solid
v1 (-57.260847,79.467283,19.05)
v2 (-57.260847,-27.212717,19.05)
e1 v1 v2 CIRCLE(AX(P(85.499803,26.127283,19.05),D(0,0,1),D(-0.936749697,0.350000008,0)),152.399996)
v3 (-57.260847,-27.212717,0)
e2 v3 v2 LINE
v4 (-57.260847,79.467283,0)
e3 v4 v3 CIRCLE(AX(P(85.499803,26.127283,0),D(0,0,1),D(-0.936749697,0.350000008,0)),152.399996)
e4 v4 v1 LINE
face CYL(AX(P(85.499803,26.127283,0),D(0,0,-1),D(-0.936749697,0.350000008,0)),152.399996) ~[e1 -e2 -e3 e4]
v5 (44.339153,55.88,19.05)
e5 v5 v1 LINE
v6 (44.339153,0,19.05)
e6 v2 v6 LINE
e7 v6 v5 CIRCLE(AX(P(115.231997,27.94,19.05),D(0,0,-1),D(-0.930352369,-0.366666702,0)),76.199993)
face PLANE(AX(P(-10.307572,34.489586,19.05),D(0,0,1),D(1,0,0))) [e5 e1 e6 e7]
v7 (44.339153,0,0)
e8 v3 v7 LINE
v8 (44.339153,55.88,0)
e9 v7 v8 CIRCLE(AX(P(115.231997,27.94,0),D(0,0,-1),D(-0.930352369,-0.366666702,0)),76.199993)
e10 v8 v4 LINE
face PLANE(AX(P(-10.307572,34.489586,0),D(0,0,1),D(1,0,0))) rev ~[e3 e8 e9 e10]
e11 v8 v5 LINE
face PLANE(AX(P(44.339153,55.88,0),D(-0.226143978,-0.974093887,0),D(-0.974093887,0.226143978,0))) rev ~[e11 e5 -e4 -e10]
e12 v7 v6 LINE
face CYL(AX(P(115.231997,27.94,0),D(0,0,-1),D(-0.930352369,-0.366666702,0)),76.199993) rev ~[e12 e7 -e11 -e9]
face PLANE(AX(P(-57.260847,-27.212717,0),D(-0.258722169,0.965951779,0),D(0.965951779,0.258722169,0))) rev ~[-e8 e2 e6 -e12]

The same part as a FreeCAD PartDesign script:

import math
import FreeCAD as App
import Part
import Sketcher

V = App.Vector
Q = App.Units.Quantity

doc = App.newDocument("Part")
body = doc.addObject("PartDesign::Body", "Body")

# Sketch on XY plane
sketch1 = doc.addObject("Sketcher::SketchObject", "Sketch")
body.addObject(sketch1)
sketch1.AttachmentSupport = (doc.XY_Plane, [""])
sketch1.MapMode = "FlatFace"
sketch1.addGeometry(Part.LineSegment(V(-57, -27, 0), V(44, 0, 0)), False)
sketch1.addGeometry(Part.ArcOfCircle(Part.Circle(V(115, 28, 0), V(0, 0, 1), 76), math.radians(158), math.radians(202)), False)
sketch1.addGeometry(Part.LineSegment(V(44, 56, 0), V(-57, 79, 0)), False)
sketch1.addGeometry(Part.ArcOfCircle(Part.Circle(V(85, 26, 0), V(0, 0, 1), 152), math.radians(160), math.radians(200)), False)
sketch1.addConstraint(Sketcher.Constraint("Coincident", 0, 2, 1, 2))
sketch1.addConstraint(Sketcher.Constraint("Coincident", 1, 1, 2, 1))
sketch1.addConstraint(Sketcher.Constraint("Coincident", 2, 2, 3, 1))
sketch1.addConstraint(Sketcher.Constraint("Coincident", 3, 2, 0, 1))
sketch1.addConstraint(Sketcher.Constraint("PointOnObject", 0, 2, -1))
sketch1.addConstraint(Sketcher.Constraint("Vertical", 0, 2, 1, 1))
sketch1.addConstraint(Sketcher.Constraint("Vertical", 2, 2, 3, 2))
sketch1.addConstraint(Sketcher.Constraint("Radius", 3, Q("5.9999999 in")))
sketch1.addConstraint(Sketcher.Constraint("DistanceX", 2, 2, 1, 1, Q("4 in")))
sketch1.addConstraint(Sketcher.Constraint("DistanceY", -1, 1, 1, 3, Q("1.1 in")))
sketch1.addConstraint(Sketcher.Constraint("DistanceY", 3, 3, 2, 2, Q("2.1 in")))
sketch1.addConstraint(Sketcher.Constraint("Radius", 1, Q("76.199993 mm")))
sketch1.addConstraint(Sketcher.Constraint("Distance", 2, Q("104.302061 mm")))
sketch1.addConstraint(Sketcher.Constraint("DistanceX", -1, 1, 1, 3, Q("115.231997 mm")))
pad1 = doc.addObject("PartDesign::Pad", "Pad")
body.addObject(pad1)
pad1.Profile = sketch1
pad1.Length = Q("0.75 in")

doc.recompute()
